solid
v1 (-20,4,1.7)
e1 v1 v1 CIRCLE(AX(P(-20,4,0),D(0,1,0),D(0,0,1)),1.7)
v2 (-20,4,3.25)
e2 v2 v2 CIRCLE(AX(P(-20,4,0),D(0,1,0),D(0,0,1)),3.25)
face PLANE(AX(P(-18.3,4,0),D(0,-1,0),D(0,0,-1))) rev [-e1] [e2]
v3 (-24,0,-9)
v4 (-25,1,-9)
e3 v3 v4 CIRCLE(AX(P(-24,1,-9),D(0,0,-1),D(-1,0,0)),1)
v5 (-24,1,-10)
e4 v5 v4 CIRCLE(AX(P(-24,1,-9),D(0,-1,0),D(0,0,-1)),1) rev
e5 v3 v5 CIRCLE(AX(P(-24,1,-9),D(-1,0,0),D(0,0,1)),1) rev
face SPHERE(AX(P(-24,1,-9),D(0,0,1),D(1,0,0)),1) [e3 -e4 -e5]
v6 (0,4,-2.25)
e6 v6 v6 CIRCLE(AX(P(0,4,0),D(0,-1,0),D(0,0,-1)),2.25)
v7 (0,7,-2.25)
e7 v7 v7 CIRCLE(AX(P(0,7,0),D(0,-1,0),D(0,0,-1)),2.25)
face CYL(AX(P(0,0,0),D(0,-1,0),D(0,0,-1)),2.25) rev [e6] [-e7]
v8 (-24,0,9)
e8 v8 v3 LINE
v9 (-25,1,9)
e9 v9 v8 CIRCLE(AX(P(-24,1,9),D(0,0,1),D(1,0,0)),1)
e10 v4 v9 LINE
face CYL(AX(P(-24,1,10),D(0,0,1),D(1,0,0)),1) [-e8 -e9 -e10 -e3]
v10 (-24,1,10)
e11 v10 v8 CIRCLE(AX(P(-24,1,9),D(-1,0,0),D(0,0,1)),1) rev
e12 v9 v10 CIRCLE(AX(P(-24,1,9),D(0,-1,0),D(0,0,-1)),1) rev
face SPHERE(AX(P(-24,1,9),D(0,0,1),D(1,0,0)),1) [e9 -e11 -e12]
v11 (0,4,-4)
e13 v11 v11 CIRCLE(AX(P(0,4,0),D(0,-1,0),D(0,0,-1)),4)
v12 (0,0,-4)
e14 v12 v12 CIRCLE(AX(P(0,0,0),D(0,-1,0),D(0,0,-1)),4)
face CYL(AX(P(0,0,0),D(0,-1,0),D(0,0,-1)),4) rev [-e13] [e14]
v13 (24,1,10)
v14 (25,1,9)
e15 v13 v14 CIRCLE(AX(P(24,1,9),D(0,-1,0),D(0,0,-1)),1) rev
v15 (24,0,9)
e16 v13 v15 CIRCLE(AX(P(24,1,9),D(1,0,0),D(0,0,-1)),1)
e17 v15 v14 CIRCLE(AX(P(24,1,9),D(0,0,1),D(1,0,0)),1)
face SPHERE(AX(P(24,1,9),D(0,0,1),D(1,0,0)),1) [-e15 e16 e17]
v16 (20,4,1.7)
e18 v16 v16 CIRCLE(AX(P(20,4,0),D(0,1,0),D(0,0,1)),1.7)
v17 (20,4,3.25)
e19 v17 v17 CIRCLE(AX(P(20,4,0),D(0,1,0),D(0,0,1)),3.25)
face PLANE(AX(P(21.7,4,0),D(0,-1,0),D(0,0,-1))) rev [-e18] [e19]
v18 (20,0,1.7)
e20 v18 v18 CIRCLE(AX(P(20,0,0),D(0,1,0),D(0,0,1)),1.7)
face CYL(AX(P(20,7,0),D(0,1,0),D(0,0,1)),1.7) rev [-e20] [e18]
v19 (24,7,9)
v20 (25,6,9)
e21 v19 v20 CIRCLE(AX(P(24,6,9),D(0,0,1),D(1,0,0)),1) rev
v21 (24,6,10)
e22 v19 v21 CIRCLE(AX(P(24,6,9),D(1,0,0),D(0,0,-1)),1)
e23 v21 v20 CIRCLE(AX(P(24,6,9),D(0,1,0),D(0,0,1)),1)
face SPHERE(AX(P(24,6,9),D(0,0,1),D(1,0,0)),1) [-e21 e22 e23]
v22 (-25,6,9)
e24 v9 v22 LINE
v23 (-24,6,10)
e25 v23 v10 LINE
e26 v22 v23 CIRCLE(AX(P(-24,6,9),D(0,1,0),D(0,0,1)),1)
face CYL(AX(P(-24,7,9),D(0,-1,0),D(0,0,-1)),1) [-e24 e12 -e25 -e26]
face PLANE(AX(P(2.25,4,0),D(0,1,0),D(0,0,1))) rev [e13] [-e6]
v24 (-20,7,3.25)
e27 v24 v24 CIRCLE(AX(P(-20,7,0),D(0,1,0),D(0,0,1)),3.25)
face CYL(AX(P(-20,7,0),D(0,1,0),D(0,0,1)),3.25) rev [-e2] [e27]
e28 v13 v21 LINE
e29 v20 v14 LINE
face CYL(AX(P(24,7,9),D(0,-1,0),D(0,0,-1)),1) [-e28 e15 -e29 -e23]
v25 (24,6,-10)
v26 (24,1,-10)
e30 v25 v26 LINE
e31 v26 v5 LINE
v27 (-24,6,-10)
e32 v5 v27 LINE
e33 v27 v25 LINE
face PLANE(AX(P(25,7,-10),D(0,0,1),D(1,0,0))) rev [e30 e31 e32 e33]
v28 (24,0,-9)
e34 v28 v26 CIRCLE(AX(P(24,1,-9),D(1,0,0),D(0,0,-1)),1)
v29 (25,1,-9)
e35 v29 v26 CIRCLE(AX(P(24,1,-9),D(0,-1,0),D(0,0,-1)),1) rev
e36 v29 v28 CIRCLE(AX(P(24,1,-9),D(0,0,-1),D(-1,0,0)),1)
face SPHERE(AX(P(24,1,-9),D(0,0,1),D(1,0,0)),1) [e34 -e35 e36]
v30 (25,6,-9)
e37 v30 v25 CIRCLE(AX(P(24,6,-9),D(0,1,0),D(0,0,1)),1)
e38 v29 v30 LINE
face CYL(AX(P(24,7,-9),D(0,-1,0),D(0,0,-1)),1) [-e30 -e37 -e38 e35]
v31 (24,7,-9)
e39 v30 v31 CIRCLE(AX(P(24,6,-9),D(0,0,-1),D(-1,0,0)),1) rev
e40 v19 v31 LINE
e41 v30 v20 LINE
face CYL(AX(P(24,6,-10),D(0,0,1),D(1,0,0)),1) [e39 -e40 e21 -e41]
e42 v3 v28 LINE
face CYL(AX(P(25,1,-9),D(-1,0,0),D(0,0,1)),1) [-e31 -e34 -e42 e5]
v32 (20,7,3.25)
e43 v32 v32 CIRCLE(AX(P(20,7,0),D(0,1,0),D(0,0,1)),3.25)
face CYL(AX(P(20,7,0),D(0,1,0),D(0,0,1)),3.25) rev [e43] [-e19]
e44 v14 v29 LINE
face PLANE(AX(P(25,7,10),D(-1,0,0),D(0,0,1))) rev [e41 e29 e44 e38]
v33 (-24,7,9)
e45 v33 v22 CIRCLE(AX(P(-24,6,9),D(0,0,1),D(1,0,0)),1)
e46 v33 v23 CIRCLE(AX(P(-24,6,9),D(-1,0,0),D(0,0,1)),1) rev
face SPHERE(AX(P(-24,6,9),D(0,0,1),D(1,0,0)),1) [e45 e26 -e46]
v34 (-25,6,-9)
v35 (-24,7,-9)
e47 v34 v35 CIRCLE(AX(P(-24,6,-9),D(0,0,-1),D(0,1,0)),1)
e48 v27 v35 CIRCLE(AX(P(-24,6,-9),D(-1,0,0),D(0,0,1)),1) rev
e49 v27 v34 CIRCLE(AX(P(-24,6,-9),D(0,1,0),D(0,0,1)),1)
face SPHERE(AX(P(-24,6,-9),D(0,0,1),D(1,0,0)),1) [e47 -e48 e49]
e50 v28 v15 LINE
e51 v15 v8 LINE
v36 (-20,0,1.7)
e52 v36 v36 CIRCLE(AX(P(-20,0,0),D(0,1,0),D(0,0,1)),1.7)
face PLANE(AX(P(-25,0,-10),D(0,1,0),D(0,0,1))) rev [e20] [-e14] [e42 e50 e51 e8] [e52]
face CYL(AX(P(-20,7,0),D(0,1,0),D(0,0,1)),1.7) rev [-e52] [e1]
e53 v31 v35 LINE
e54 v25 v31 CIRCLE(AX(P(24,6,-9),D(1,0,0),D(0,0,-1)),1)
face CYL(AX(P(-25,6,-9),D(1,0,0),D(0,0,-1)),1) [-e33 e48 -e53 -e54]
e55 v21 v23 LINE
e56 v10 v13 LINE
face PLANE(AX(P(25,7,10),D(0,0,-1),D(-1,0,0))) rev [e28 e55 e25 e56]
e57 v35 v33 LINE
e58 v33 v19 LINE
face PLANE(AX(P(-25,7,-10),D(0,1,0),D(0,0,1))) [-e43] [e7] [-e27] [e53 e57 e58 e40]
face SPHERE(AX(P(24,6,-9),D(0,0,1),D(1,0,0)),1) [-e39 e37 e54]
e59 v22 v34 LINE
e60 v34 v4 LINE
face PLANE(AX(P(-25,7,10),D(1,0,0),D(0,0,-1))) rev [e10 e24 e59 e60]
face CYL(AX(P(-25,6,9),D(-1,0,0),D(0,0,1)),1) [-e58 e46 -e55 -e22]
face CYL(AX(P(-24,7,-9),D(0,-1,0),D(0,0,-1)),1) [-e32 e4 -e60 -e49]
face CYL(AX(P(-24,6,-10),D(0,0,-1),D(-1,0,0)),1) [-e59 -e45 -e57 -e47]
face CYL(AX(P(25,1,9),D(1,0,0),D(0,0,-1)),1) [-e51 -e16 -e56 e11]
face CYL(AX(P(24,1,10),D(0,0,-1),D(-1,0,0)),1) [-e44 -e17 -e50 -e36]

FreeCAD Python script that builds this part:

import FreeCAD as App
import Part
import Sketcher
from FreeCAD import Vector


def edges_at(feature, points):
    """Names of the edges that pass closest to the given points."""
    edges = feature.Shape.Edges
    near = lambda p: min(range(len(edges)), key=lambda i: edges[i].distToShape(Part.Vertex(*p))[0])
    return sorted({f"Edge{near(p) + 1}" for p in points})

doc = App.newDocument("Part")
body = doc.addObject("PartDesign::Body", "Body")

# Sketch on XZ plane
sketch1 = doc.addObject("Sketcher::SketchObject", "Sketch")
body.addObject(sketch1)
sketch1.AttachmentSupport = (doc.XZ_Plane, [""])
sketch1.MapMode = "FlatFace"
sketch1.addGeometry([
    Part.LineSegment(Vector(-25, -10, 0), Vector(-25, 10, 0)),
    Part.LineSegment(Vector(-25, 10, 0), Vector(25, 10, 0)),
    Part.LineSegment(Vector(25, 10, 0), Vector(25, -10, 0)),
    Part.LineSegment(Vector(25, -10, 0), Vector(-25, -10, 0)),
], False)
sketch1.addConstraint([
    Sketcher.Constraint("Coincident", 0, 2, 1, 1),
    Sketcher.Constraint("Coincident", 1, 2, 2, 1),
    Sketcher.Constraint("Coincident", 2, 2, 3, 1),
    Sketcher.Constraint("Coincident", 3, 2, 0, 1),
    Sketcher.Constraint("Vertical", 0),
    Sketcher.Constraint("Horizontal", 1),
    Sketcher.Constraint("Vertical", 2),
    Sketcher.Constraint("Horizontal", 3),
    Sketcher.Constraint("Symmetric", 0, 2, 2, 2, -1, 1),
    Sketcher.Constraint("DistanceX", 1, 1, 1, 2, 50.0),
    Sketcher.Constraint("DistanceY", 0, 1, 0, 2, 20.0),
])
pad1 = doc.addObject("PartDesign::Pad", "Pad")
body.addObject(pad1)
pad1.Profile = sketch1
pad1.Length = 7
pad1.Reversed = True

# Sketch on XZ plane
sketch2 = doc.addObject("Sketcher::SketchObject", "Sketch001")
body.addObject(sketch2)
sketch2.AttachmentSupport = (doc.XZ_Plane, [""])
sketch2.MapMode = "FlatFace"
sketch2.AttachmentOffset = App.Placement(Vector(0, 0, -7), App.Rotation())
sketch2.addGeometry([
    Part.Circle(Vector(-20, 0, 0), Vector(0, 0, 1), 1.7),
    Part.Circle(Vector(20, 0, 0), Vector(0, 0, 1), 1.7),
], False)
sketch2.addConstraint([
    Sketcher.Constraint("Equal", 0, 1),
    Sketcher.Constraint("Symmetric", 0, 3, 1, 3, -1, 1),
    Sketcher.Constraint("PointOnObject", 0, 3, -1),
    Sketcher.Constraint("Diameter", 0, 3.4),
    Sketcher.Constraint("DistanceX", 0, 3, -1, 1, 20.0),
])
doc.recompute()
hole = doc.addObject("PartDesign::Hole", "Hole")
body.addObject(hole)
hole.Profile = sketch2
hole.ThreadType = "None"
hole.Diameter = 3.4
hole.DepthType = "ThroughAll"
hole.HoleCutType = "Counterbore"
hole.HoleCutDiameter = 6.5
hole.HoleCutDepth = 3
hole.Reversed = True
doc.recompute()

fillet = doc.addObject("PartDesign::Fillet", "Fillet")
body.addObject(fillet)
fillet.Base = (hole, edges_at(hole, [
    (25, 7, 0),
    (0, 7, -10),
    (-25, 7, 0),
    (0, 0, -10),
    (25, 0, 0),
    (0, 0, 10),
    (-25, 0, 0),
    (0, 7, 10),
    (-25, 3.5, -10),
    (25, 3.5, -10),
    (25, 3.5, 10),
    (-25, 3.5, 10),
]))
fillet.Radius = 1

# Sketch on XZ plane
sketch3 = doc.addObject("Sketcher::SketchObject", "Sketch002")
body.addObject(sketch3)
sketch3.AttachmentSupport = (doc.XZ_Plane, [""])
sketch3.MapMode = "FlatFace"
sketch3.addGeometry(Part.Circle(Vector(0, 0, 0), Vector(0, 0, 1), 2.2), False)
sketch3.addConstraint([
    Sketcher.Constraint("Coincident", 0, 3, -1, 1),
    Sketcher.Constraint("Diameter", 0, 4.5),
])
doc.recompute()
hole2 = doc.addObject("PartDesign::Hole", "Hole001")
body.addObject(hole2)
hole2.Profile = sketch3
hole2.ThreadType = "None"
hole2.Diameter = 4.5
hole2.DepthType = "ThroughAll"
hole2.HoleCutType = "Counterbore"
hole2.HoleCutDiameter = 8
hole2.HoleCutDepth = 4

doc.recompute()
